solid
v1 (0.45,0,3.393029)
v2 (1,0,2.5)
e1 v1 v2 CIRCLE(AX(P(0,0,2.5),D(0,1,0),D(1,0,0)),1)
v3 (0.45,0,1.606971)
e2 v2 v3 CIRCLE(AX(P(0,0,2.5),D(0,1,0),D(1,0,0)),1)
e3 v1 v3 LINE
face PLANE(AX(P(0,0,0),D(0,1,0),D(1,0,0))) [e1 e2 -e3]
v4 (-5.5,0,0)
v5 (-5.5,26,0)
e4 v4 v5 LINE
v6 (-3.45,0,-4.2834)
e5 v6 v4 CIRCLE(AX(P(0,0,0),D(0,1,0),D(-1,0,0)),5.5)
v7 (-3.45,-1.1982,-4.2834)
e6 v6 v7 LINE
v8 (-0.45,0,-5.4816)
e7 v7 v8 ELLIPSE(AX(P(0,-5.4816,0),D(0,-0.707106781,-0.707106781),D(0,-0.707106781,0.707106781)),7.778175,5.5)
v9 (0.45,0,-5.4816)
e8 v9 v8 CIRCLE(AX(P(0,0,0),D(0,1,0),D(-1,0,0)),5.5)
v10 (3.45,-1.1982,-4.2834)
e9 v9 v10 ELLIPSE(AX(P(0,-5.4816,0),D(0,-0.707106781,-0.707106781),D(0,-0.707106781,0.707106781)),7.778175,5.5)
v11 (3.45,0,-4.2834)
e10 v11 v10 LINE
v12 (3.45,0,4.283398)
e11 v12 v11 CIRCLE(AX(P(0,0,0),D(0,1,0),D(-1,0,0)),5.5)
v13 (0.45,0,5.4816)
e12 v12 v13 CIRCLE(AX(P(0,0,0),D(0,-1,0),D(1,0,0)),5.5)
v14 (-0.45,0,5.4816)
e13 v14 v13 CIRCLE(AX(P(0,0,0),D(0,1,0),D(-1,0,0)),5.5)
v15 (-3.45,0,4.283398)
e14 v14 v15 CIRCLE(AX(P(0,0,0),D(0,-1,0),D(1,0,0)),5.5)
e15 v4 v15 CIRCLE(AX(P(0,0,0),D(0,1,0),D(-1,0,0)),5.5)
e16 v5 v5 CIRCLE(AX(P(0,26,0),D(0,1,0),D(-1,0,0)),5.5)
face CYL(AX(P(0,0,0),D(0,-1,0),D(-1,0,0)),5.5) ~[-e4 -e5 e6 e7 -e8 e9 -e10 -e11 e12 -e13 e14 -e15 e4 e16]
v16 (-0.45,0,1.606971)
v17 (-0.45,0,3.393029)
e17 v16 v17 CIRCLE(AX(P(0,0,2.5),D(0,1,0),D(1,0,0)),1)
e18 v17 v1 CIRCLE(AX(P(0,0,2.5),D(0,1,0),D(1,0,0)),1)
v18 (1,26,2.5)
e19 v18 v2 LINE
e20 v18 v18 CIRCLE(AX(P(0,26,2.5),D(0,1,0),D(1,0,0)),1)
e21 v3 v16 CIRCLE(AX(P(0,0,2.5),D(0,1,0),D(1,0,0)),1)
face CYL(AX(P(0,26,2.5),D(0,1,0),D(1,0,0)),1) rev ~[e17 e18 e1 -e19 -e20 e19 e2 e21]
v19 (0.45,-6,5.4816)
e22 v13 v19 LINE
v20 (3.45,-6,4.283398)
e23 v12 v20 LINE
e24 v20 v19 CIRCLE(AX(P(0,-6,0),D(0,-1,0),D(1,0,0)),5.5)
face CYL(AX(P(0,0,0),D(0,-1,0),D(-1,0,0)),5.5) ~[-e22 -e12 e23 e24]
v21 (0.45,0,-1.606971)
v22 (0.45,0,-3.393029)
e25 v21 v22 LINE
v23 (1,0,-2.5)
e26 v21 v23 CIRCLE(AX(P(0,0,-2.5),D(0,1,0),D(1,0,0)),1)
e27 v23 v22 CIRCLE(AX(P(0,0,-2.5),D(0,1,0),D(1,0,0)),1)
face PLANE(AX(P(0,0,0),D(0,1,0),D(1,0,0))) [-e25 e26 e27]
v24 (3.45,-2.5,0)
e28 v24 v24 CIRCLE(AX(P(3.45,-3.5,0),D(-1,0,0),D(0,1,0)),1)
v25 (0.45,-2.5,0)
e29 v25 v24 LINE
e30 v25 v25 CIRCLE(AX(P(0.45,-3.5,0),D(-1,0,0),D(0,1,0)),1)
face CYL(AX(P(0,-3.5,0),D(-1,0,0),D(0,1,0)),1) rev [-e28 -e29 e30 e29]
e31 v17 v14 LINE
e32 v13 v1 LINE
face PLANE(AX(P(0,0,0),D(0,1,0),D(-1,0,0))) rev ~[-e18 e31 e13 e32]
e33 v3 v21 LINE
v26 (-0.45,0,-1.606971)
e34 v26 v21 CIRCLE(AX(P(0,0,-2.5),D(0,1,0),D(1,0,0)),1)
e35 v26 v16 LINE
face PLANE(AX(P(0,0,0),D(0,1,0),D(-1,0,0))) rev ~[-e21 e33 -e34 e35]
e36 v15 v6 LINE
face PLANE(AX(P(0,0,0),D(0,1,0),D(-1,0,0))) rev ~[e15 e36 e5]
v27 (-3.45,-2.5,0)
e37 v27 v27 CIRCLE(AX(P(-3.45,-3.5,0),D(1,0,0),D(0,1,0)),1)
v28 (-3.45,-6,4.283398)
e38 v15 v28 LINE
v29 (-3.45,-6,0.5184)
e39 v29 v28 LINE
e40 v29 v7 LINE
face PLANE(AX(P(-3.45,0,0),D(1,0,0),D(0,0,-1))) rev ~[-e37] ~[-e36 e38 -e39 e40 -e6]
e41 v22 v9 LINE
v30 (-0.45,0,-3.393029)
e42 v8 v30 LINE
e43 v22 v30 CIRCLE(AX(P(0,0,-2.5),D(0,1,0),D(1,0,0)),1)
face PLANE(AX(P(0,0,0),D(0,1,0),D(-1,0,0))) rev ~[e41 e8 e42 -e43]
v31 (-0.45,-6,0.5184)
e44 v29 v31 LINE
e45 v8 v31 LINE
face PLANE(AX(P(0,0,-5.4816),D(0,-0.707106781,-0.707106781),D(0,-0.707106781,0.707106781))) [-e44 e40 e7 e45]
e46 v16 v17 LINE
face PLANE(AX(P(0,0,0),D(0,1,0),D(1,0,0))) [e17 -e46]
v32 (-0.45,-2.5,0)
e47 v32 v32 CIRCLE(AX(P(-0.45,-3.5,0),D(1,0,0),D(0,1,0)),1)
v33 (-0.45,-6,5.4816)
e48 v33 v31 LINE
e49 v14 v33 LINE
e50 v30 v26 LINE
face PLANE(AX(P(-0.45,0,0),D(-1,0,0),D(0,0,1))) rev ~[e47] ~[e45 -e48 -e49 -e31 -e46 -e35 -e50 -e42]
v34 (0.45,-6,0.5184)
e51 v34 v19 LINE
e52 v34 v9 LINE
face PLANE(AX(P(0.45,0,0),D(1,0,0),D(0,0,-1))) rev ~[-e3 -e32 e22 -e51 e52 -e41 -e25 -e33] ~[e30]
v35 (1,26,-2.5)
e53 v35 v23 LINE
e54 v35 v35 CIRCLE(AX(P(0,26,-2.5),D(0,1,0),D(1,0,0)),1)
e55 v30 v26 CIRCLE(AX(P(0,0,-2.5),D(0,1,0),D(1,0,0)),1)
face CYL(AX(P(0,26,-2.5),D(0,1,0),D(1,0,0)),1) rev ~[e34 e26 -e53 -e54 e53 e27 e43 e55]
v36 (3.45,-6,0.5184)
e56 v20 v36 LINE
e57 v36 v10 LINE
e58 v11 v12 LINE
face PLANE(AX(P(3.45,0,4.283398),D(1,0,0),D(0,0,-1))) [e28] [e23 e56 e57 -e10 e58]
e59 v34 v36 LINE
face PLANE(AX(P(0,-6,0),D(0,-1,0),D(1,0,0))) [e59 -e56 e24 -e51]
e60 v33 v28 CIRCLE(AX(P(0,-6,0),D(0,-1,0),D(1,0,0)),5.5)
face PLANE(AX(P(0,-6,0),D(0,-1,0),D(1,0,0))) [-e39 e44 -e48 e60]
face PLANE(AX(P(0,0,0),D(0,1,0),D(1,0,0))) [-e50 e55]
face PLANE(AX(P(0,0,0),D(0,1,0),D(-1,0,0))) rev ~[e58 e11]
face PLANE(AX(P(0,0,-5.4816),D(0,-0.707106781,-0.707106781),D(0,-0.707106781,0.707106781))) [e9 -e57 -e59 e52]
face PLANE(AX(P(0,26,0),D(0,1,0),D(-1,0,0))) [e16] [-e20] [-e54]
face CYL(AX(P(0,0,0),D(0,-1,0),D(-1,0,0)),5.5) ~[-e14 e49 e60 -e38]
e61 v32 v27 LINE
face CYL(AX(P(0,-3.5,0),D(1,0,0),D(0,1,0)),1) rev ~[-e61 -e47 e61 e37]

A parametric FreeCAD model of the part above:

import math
import FreeCAD as App
import Part
import Sketcher
from FreeCAD import Vector

doc = App.newDocument("Part")
params = doc.addObject("Spreadsheet::Sheet", "Params")
for row, (alias, value) in enumerate([
    ("sketch1_diameter", "11 mm"),
    ("pad1_length", "26 mm"),
    ("sketch2_radius", "5.5 mm"),
    ("pad2_length", "6 mm"),
    ("sketch3_width", "6 mm"),
    ("sketch4_diameter", "2 mm"),
    ("sketch5_diameter", "2 mm"),
    ("pocket3_length", "26 mm"),
], start=1):
    params.set(f"A{row}", alias)
    params.set(f"B{row}", "=" + value)
    params.setAlias(f"B{row}", alias)

body = doc.addObject("PartDesign::Body", "Body")

sketch1 = body.newObject("Sketcher::SketchObject", "Sketch")
sketch1.AttachmentSupport = (doc.getObject("XZ_Plane"), [""])
sketch1.MapMode = "FlatFace"
sketch1.addGeometry(Part.Circle(Vector(0, 0, 0), Vector(0, 0, 1), 6), False)
sketch1.addConstraint([
    Sketcher.Constraint("Coincident", 0, 3, -1, 1),
    Sketcher.Constraint("Diameter", 0, 11.0),
])
sketch1.setExpression("Constraints[1]", "Params.sketch1_diameter")
pad1 = body.newObject("PartDesign::Pad", "Pad")
pad1.Profile = sketch1
pad1.setExpression("Length", "Params.pad1_length")
pad1.Reversed = True

sketch2 = body.newObject("Sketcher::SketchObject", "Sketch001")
sketch2.AttachmentSupport = (doc.getObject("XZ_Plane"), [""])
sketch2.MapMode = "FlatFace"
sketch2.addGeometry([
    Part.ArcOfCircle(Part.Circle(Vector(0, 0, 0), Vector(0, 0, 1), 5.5), math.radians(51), math.radians(85)),
    Part.LineSegment(Vector(0.5, 5.5, 0), Vector(0.5, -5.5, 0)),
    Part.ArcOfCircle(Part.Circle(Vector(0, 0, 0), Vector(0, 0, 1), 5.5), math.radians(-85), math.radians(-51)),
    Part.LineSegment(Vector(3.5, -4.3, 0), Vector(3.5, 4.3, 0)),
    Part.LineSegment(Vector(-0.5, -5.5, 0), Vector(-0.5, 5.5, 0)),
    Part.ArcOfCircle(Part.Circle(Vector(0, 0, 0), Vector(0, 0, 1), 5.5), math.radians(95), math.radians(129)),
    Part.LineSegment(Vector(-3.5, 4.3, 0), Vector(-3.5, -4.3, 0)),
    Part.ArcOfCircle(Part.Circle(Vector(0, 0, 0), Vector(0, 0, 1), 5.5), math.radians(-129), math.radians(-95)),
], False)
sketch2.addConstraint([
    Sketcher.Constraint("Coincident", 0, 2, 1, 1),
    Sketcher.Constraint("Coincident", 1, 2, 2, 1),
    Sketcher.Constraint("Coincident", 2, 2, 3, 1),
    Sketcher.Constraint("Coincident", 3, 2, 0, 1),
    Sketcher.Constraint("Coincident", 4, 2, 5, 1),
    Sketcher.Constraint("Coincident", 5, 2, 6, 1),
    Sketcher.Constraint("Coincident", 6, 2, 7, 1),
    Sketcher.Constraint("Coincident", 7, 2, 4, 1),
    Sketcher.Constraint("Vertical", 1),
    Sketcher.Constraint("Vertical", 3),
    Sketcher.Constraint("Vertical", 4),
    Sketcher.Constraint("Vertical", 6),
    Sketcher.Constraint("Coincident", 0, 3, -1, 1),
    Sketcher.Constraint("Coincident", 2, 3, -1, 1),
    Sketcher.Constraint("Coincident", 5, 3, -1, 1),
    Sketcher.Constraint("Coincident", 7, 3, -1, 1),
    Sketcher.Constraint("Equal", 0, 2),
    Sketcher.Constraint("Equal", 2, 5),
    Sketcher.Constraint("Equal", 5, 7),
    Sketcher.Constraint("Horizontal", 0, 2, 4, 2),
    Sketcher.Constraint("Horizontal", 3, 2, 5, 2),
    Sketcher.Constraint("DistanceX", 1, 2, 2, 2, 3.0),
    Sketcher.Constraint("Radius", 0, 5.5),
    Sketcher.Constraint("DistanceX", -1, 1, 0, 2, 0.45),
])
sketch2.setExpression("Constraints[22]", "Params.sketch2_radius")
pad2 = body.newObject("PartDesign::Pad", "Pad001")
pad2.Profile = sketch2
pad2.setExpression("Length", "Params.pad2_length")

sketch3 = body.newObject("Sketcher::SketchObject", "Sketch002")
sketch3.AttachmentSupport = (doc.getObject("YZ_Plane"), [""])
sketch3.MapMode = "FlatFace"
sketch3.addGeometry([
    Part.LineSegment(Vector(-6, -5, 0), Vector(0, -5, 0)),
    Part.LineSegment(Vector(0, -5, 0), Vector(-6, 1, 0)),
    Part.LineSegment(Vector(-6, 1, 0), Vector(-6, -5, 0)),
], False)
sketch3.addConstraint([
    Sketcher.Constraint("Coincident", 0, 2, 1, 1),
    Sketcher.Constraint("Coincident", 1, 2, 2, 1),
    Sketcher.Constraint("Coincident", 2, 2, 0, 1),
    Sketcher.Constraint("Horizontal", 0),
    Sketcher.Constraint("Vertical", 2),
    Sketcher.Constraint("PointOnObject", 0, 2, -2),
    Sketcher.Constraint("Equal", 0, 2),
    Sketcher.Constraint("DistanceX", 0, 1, 0, 2, 6.0),
    Sketcher.Constraint("DistanceY", 0, 2, -1, 1, 5.4816),
])
sketch3.setExpression("Constraints[7]", "Params.sketch3_width")
pocket1 = body.newObject("PartDesign::Pocket", "Pocket")
pocket1.Profile = sketch3
pocket1.Type = "ThroughAll"
pocket1.Midplane = True

sketch4 = body.newObject("Sketcher::SketchObject", "Sketch003")
sketch4.AttachmentSupport = (doc.getObject("YZ_Plane"), [""])
sketch4.MapMode = "FlatFace"
sketch4.addGeometry(Part.Circle(Vector(-3.5, 0, 0), Vector(0, 0, 1), 1), False)
sketch4.addConstraint([
    Sketcher.Constraint("PointOnObject", 0, 3, -1),
    Sketcher.Constraint("Diameter", 0, 2.0),
    Sketcher.Constraint("DistanceX", 0, 3, -1, 1, 3.5),
])
sketch4.setExpression("Constraints[1]", "Params.sketch4_diameter")
pocket2 = body.newObject("PartDesign::Pocket", "Pocket001")
pocket2.Profile = sketch4
pocket2.Type = "ThroughAll"
pocket2.Midplane = True

sketch5 = body.newObject("Sketcher::SketchObject", "Sketch004")
sketch5.AttachmentSupport = (doc.getObject("XZ_Plane"), [""])
sketch5.MapMode = "FlatFace"
sketch5.AttachmentOffset = App.Placement(Vector(0, 0, -26), App.Rotation())
sketch5.addGeometry([
    Part.Circle(Vector(0, -2.5, 0), Vector(0, 0, 1), 1),
    Part.Circle(Vector(0, 2.5, 0), Vector(0, 0, 1), 1),
], False)
sketch5.addConstraint([
    Sketcher.Constraint("Equal", 0, 1),
    Sketcher.Constraint("Symmetric", 0, 3, 1, 3, -1, 1),
    Sketcher.Constraint("PointOnObject", 0, 3, -2),
    Sketcher.Constraint("Diameter", 0, 2.0),
    Sketcher.Constraint("DistanceY", 0, 3, -1, 1, 2.5),
])
sketch5.setExpression("Constraints[3]", "Params.sketch5_diameter")
pocket3 = body.newObject("PartDesign::Pocket", "Pocket002")
pocket3.Profile = sketch5
pocket3.setExpression("Length", "Params.pocket3_length")
pocket3.Reversed = True

doc.recompute()
